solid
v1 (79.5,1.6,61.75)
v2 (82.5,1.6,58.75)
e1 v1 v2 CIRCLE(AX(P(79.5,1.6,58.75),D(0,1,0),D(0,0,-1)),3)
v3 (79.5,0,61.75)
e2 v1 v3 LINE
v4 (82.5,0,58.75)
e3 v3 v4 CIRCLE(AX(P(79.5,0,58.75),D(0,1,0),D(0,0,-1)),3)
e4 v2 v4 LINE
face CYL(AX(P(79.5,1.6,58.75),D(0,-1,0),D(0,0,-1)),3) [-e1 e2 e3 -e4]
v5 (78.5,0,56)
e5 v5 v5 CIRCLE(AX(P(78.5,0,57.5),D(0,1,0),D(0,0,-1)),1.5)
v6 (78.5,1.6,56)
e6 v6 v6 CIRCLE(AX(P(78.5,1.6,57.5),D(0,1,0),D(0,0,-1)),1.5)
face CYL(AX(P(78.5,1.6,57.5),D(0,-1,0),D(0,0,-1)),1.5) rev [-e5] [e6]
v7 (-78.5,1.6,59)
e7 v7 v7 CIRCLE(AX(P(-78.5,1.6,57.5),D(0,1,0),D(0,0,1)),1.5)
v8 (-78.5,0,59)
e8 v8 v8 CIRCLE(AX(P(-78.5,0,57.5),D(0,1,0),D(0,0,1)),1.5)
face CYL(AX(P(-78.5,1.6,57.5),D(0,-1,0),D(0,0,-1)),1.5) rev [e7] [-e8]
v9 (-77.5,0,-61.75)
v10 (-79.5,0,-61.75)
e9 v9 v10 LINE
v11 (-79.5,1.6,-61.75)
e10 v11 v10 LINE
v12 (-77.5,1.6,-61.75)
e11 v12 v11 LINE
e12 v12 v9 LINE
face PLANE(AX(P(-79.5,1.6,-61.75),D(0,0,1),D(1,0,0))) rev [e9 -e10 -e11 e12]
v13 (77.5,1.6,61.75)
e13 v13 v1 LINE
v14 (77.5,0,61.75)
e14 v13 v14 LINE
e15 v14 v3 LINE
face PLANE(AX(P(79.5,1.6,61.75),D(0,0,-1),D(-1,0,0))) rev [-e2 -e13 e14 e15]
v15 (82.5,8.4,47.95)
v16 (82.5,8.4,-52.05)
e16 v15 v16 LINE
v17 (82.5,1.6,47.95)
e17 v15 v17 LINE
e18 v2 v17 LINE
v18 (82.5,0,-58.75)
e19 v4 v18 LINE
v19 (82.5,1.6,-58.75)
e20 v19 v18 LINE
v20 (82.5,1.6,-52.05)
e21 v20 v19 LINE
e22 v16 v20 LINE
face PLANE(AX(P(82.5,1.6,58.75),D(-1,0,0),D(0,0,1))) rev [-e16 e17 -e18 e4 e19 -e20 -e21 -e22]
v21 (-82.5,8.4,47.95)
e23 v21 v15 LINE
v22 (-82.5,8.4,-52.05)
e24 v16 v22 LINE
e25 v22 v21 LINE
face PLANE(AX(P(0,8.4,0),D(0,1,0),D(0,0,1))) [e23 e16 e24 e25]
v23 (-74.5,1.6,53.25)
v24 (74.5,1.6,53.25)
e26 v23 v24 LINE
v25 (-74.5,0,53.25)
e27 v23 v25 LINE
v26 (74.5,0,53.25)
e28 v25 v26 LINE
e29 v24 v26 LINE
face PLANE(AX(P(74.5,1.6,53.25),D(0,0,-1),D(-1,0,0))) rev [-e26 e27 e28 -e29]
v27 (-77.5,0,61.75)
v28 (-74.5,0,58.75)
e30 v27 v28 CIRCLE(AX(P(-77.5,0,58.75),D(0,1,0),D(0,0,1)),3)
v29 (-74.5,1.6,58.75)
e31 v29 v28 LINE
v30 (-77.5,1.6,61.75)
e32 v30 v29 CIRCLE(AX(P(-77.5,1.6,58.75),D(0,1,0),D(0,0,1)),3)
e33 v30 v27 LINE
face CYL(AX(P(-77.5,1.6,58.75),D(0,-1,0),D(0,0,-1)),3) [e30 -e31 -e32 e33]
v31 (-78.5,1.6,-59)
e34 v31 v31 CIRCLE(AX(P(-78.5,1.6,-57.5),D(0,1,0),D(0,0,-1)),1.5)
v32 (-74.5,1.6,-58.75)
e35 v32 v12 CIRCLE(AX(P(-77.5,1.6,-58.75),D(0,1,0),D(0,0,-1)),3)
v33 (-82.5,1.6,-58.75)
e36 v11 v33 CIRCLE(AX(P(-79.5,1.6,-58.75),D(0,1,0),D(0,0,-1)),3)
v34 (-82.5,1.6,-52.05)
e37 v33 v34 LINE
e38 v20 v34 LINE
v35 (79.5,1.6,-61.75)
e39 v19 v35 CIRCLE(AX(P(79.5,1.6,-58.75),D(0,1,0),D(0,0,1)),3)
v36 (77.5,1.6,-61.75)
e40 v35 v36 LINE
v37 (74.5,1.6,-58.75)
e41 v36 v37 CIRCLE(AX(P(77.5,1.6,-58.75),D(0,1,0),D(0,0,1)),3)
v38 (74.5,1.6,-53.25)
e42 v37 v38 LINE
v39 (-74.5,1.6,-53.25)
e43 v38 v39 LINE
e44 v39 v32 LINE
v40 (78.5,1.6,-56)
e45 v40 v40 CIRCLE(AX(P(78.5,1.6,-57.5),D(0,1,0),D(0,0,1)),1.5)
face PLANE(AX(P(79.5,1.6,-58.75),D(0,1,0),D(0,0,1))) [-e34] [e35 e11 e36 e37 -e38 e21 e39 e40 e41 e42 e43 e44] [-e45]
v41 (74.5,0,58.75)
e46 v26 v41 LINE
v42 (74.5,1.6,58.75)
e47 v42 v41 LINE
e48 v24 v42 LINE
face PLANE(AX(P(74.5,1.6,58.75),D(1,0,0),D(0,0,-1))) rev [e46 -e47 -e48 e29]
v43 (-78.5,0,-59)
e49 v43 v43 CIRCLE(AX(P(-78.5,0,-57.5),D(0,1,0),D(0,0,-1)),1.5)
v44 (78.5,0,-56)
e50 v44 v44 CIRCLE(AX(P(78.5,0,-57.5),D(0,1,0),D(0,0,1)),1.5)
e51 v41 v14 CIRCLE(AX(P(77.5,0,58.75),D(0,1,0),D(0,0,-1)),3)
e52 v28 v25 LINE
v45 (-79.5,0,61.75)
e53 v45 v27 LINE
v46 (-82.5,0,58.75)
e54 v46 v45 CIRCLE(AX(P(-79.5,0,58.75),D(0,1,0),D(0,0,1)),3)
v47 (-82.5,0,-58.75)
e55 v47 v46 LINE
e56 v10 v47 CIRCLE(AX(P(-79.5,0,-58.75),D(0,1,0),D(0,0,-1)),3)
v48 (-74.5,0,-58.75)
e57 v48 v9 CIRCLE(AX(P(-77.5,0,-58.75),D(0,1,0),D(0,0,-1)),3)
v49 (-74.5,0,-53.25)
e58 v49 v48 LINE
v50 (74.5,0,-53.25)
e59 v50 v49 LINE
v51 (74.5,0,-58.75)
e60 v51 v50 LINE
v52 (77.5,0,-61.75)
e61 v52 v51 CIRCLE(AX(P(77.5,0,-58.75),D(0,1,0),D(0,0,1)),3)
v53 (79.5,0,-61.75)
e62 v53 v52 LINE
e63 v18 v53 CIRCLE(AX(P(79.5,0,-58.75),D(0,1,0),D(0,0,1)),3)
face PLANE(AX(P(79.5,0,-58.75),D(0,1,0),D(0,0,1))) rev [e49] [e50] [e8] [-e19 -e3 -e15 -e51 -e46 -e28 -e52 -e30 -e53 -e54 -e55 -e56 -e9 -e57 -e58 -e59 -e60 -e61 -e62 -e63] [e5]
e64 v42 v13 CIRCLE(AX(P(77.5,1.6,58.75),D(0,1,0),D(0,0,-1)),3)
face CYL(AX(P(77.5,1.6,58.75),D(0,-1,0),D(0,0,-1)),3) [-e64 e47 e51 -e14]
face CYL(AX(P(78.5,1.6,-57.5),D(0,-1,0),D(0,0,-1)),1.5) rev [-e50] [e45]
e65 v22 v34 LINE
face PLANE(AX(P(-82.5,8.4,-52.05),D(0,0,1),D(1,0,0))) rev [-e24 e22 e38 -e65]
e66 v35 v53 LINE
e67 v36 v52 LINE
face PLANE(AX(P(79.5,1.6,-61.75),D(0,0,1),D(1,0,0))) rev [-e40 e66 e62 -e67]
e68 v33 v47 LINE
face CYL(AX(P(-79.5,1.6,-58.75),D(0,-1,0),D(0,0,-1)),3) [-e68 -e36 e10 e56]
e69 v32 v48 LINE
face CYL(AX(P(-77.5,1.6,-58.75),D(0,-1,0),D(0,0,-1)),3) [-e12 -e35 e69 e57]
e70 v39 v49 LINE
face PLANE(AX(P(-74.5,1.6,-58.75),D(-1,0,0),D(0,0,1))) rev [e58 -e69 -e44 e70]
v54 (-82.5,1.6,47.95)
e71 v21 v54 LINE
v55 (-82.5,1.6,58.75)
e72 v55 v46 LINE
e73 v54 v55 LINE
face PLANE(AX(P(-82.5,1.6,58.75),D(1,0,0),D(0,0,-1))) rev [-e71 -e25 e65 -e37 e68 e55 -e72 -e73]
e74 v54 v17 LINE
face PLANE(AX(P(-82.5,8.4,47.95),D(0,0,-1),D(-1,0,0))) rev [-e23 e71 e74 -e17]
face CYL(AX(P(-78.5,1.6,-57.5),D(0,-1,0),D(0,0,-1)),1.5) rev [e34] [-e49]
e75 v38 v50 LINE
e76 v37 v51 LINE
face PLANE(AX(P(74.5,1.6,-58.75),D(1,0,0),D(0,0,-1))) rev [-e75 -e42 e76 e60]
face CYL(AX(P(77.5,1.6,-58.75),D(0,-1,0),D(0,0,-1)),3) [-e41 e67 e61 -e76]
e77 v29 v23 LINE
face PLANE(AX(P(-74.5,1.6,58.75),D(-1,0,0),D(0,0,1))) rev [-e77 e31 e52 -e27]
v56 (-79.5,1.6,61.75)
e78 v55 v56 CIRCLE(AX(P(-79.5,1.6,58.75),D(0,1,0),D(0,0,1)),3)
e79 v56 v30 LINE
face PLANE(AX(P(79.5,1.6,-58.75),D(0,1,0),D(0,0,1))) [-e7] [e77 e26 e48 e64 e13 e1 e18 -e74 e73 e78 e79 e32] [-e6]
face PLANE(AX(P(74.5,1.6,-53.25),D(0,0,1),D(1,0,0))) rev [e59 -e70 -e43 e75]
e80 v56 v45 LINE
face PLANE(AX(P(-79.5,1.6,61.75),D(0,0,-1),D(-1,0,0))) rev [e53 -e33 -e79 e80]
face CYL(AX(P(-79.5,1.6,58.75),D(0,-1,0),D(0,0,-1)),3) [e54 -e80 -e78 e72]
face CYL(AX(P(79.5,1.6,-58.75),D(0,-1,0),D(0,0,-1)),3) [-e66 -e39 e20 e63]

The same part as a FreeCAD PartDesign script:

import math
import FreeCAD as App
import Part
import Sketcher

V = App.Vector

doc = App.newDocument("Part")
body = doc.addObject("PartDesign::Body", "Body")

sketch1 = body.newObject("Sketcher::SketchObject", "Sketch")
sketch1.AttachmentSupport = (doc.getObject("XZ_Plane"), [""])
sketch1.MapMode = "FlatFace"
sketch1.addGeometry(Part.LineSegment(V(82.5, 58.8, 0), V(82.5, -58.8, 0)), False)
sketch1.addGeometry(Part.ArcOfCircle(Part.Circle(V(79.5, -58.8, 0), V(0, 0, 1), 3), math.radians(-90), math.radians(0)), False)
sketch1.addGeometry(Part.LineSegment(V(79.5, -61.8, 0), V(77.5, -61.8, 0)), False)
sketch1.addGeometry(Part.ArcOfCircle(Part.Circle(V(77.5, -58.8, 0), V(0, 0, 1), 3), math.radians(180), math.radians(270)), False)
sketch1.addGeometry(Part.LineSegment(V(74.5, -58.8, 0), V(74.5, -53.2, 0)), False)
sketch1.addGeometry(Part.LineSegment(V(74.5, -53.2, 0), V(-74.5, -53.2, 0)), False)
sketch1.addGeometry(Part.LineSegment(V(-74.5, -53.2, 0), V(-74.5, -58.8, 0)), False)
sketch1.addGeometry(Part.ArcOfCircle(Part.Circle(V(-77.5, -58.8, 0), V(0, 0, 1), 3), math.radians(-90), math.radians(0)), False)
sketch1.addGeometry(Part.LineSegment(V(-77.5, -61.8, 0), V(-79.5, -61.8, 0)), False)
sketch1.addGeometry(Part.ArcOfCircle(Part.Circle(V(-79.5, -58.8, 0), V(0, 0, 1), 3), math.radians(180), math.radians(270)), False)
sketch1.addGeometry(Part.LineSegment(V(-82.5, -58.8, 0), V(-82.5, 58.8, 0)), False)
sketch1.addGeometry(Part.ArcOfCircle(Part.Circle(V(-79.5, 58.8, 0), V(0, 0, 1), 3), math.radians(90), math.radians(180)), False)
sketch1.addGeometry(Part.LineSegment(V(-79.5, 61.8, 0), V(-77.5, 61.8, 0)), False)
sketch1.addGeometry(Part.ArcOfCircle(Part.Circle(V(-77.5, 58.8, 0), V(0, 0, 1), 3), math.radians(0), math.radians(90)), False)
sketch1.addGeometry(Part.LineSegment(V(-74.5, 58.8, 0), V(-74.5, 53.2, 0)), False)
sketch1.addGeometry(Part.LineSegment(V(-74.5, 53.2, 0), V(74.5, 53.2, 0)), False)
sketch1.addGeometry(Part.LineSegment(V(74.5, 53.2, 0), V(74.5, 58.8, 0)), False)
sketch1.addGeometry(Part.ArcOfCircle(Part.Circle(V(77.5, 58.8, 0), V(0, 0, 1), 3), math.radians(90), math.radians(180)), False)
sketch1.addGeometry(Part.LineSegment(V(77.5, 61.8, 0), V(79.5, 61.8, 0)), False)
sketch1.addGeometry(Part.ArcOfCircle(Part.Circle(V(79.5, 58.8, 0), V(0, 0, 1), 3), math.radians(0), math.radians(90)), False)
sketch1.addGeometry(Part.Circle(V(-78.5, 57.5, 0), V(0, 0, 1), 1.5), False)
sketch1.addGeometry(Part.Circle(V(78.5, 57.5, 0), V(0, 0, 1), 1.5), False)
sketch1.addGeometry(Part.Circle(V(-78.5, -57.5, 0), V(0, 0, 1), 1.5), False)
sketch1.addGeometry(Part.Circle(V(78.5, -57.5, 0), V(0, 0, 1), 1.5), False)
sketch1.addConstraint(Sketcher.Constraint("Tangent", 0, 2, 1, 2))
sketch1.addConstraint(Sketcher.Constraint("Tangent", 1, 1, 2, 1))
sketch1.addConstraint(Sketcher.Constraint("Tangent", 2, 2, 3, 2))
sketch1.addConstraint(Sketcher.Constraint("Tangent", 3, 1, 4, 1))
sketch1.addConstraint(Sketcher.Constraint("Coincident", 4, 2, 5, 1))
sketch1.addConstraint(Sketcher.Constraint("Coincident", 5, 2, 6, 1))
sketch1.addConstraint(Sketcher.Constraint("Tangent", 6, 2, 7, 2))
sketch1.addConstraint(Sketcher.Constraint("Tangent", 7, 1, 8, 1))
sketch1.addConstraint(Sketcher.Constraint("Tangent", 8, 2, 9, 2))
sketch1.addConstraint(Sketcher.Constraint("Tangent", 9, 1, 10, 1))
sketch1.addConstraint(Sketcher.Constraint("Tangent", 10, 2, 11, 2))
sketch1.addConstraint(Sketcher.Constraint("Tangent", 11, 1, 12, 1))
sketch1.addConstraint(Sketcher.Constraint("Tangent", 12, 2, 13, 2))
sketch1.addConstraint(Sketcher.Constraint("Tangent", 13, 1, 14, 1))
sketch1.addConstraint(Sketcher.Constraint("Coincident", 14, 2, 15, 1))
sketch1.addConstraint(Sketcher.Constraint("Coincident", 15, 2, 16, 1))
sketch1.addConstraint(Sketcher.Constraint("Tangent", 16, 2, 17, 2))
sketch1.addConstraint(Sketcher.Constraint("Tangent", 17, 1, 18, 1))
sketch1.addConstraint(Sketcher.Constraint("Tangent", 18, 2, 19, 2))
sketch1.addConstraint(Sketcher.Constraint("Tangent", 19, 1, 0, 1))
sketch1.addConstraint(Sketcher.Constraint("Vertical", 0))
sketch1.addConstraint(Sketcher.Constraint("Horizontal", 2))
sketch1.addConstraint(Sketcher.Constraint("Vertical", 4))
sketch1.addConstraint(Sketcher.Constraint("Horizontal", 5))
sketch1.addConstraint(Sketcher.Constraint("Vertical", 6))
sketch1.addConstraint(Sketcher.Constraint("Horizontal", 8))
sketch1.addConstraint(Sketcher.Constraint("Vertical", 10))
sketch1.addConstraint(Sketcher.Constraint("Horizontal", 12))
sketch1.addConstraint(Sketcher.Constraint("Vertical", 14))
sketch1.addConstraint(Sketcher.Constraint("Horizontal", 15))
sketch1.addConstraint(Sketcher.Constraint("Vertical", 16))
sketch1.addConstraint(Sketcher.Constraint("Horizontal", 18))
sketch1.addConstraint(Sketcher.Constraint("Equal", 1, 3))
sketch1.addConstraint(Sketcher.Constraint("Equal", 3, 7))
sketch1.addConstraint(Sketcher.Constraint("Equal", 7, 9))
sketch1.addConstraint(Sketcher.Constraint("Equal", 9, 11))
sketch1.addConstraint(Sketcher.Constraint("Equal", 11, 13))
sketch1.addConstraint(Sketcher.Constraint("Equal", 13, 17))
sketch1.addConstraint(Sketcher.Constraint("Equal", 17, 19))
sketch1.addConstraint(Sketcher.Constraint("Equal", 20, 21))
sketch1.addConstraint(Sketcher.Constraint("Equal", 21, 22))
sketch1.addConstraint(Sketcher.Constraint("Equal", 22, 23))
sketch1.addConstraint(Sketcher.Constraint("Symmetric", 1, 3, 11, 3, -1, 1))
sketch1.addConstraint(Sketcher.Constraint("Symmetric", 7, 3, 17, 3, -1, 1))
sketch1.addConstraint(Sketcher.Constraint("Symmetric", 21, 3, 22, 3, -1, 1))
sketch1.addConstraint(Sketcher.Constraint("Symmetric", 20, 3, 23, 3, -1, 1))
sketch1.addConstraint(Sketcher.Constraint("Symmetric", 4, 2, 14, 2, -1, 1))
sketch1.addConstraint(Sketcher.Constraint("Symmetric", 3, 3, 7, 3, -2))
sketch1.addConstraint(Sketcher.Constraint("Symmetric", 20, 3, 21, 3, -2))
sketch1.addConstraint(Sketcher.Constraint("Diameter", 20, 3.0))
sketch1.addConstraint(Sketcher.Constraint("Radius", 1, 3.0))
sketch1.addConstraint(Sketcher.Constraint("DistanceX", 2, 2, 2, 1, 2.0))
sketch1.addConstraint(Sketcher.Constraint("DistanceX", 5, 2, 5, 1, 149.0))
sketch1.addConstraint(Sketcher.Constraint("DistanceY", 0, 2, 0, 1, 117.5))
sketch1.addConstraint(Sketcher.Constraint("DistanceY", 4, 1, 4, 2, 5.5))
sketch1.addConstraint(Sketcher.Constraint("DistanceX", 11, 3, 20, 3, 1.0))
sketch1.addConstraint(Sketcher.Constraint("DistanceY", 22, 3, 20, 3, 115.0))
pad1 = body.newObject("PartDesign::Pad", "Pad")
pad1.Profile = sketch1
pad1.Length = 1.6
pad1.Reversed = True

sketch2 = body.newObject("Sketcher::SketchObject", "Sketch001")
sketch2.AttachmentSupport = (doc.getObject("XZ_Plane"), [""])
sketch2.MapMode = "FlatFace"
sketch2.AttachmentOffset = App.Placement(V(0, 0, -1.6), App.Rotation())
sketch2.addGeometry(Part.LineSegment(V(-82, -52, 0), V(-82, 48, 0)), False)
sketch2.addGeometry(Part.LineSegment(V(-82, 48, 0), V(82, 48, 0)), False)
sketch2.addGeometry(Part.LineSegment(V(82, 48, 0), V(82, -52, 0)), False)
sketch2.addGeometry(Part.LineSegment(V(82, -52, 0), V(-82, -52, 0)), False)
sketch2.addConstraint(Sketcher.Constraint("Coincident", 0, 2, 1, 1))
sketch2.addConstraint(Sketcher.Constraint("Coincident", 1, 2, 2, 1))
sketch2.addConstraint(Sketcher.Constraint("Coincident", 2, 2, 3, 1))
sketch2.addConstraint(Sketcher.Constraint("Coincident", 3, 2, 0, 1))
sketch2.addConstraint(Sketcher.Constraint("Vertical", 0))
sketch2.addConstraint(Sketcher.Constraint("Horizontal", 1))
sketch2.addConstraint(Sketcher.Constraint("Vertical", 2))
sketch2.addConstraint(Sketcher.Constraint("Horizontal", 3))
sketch2.addConstraint(Sketcher.Constraint("DistanceX", 1, 1, 1, 2, 165.0))
sketch2.addConstraint(Sketcher.Constraint("DistanceY", 0, 1, 0, 2, 100.0))
sketch2.addConstraint(Sketcher.Constraint("DistanceX", 0, 2, -1, 1, 82.5))
sketch2.addConstraint(Sketcher.Constraint("DistanceY", -1, 1, 0, 2, 47.95))
pad2 = body.newObject("PartDesign::Pad", "Pad001")
pad2.Profile = sketch2
pad2.Length = 6.8
pad2.Reversed = True

doc.recompute()
